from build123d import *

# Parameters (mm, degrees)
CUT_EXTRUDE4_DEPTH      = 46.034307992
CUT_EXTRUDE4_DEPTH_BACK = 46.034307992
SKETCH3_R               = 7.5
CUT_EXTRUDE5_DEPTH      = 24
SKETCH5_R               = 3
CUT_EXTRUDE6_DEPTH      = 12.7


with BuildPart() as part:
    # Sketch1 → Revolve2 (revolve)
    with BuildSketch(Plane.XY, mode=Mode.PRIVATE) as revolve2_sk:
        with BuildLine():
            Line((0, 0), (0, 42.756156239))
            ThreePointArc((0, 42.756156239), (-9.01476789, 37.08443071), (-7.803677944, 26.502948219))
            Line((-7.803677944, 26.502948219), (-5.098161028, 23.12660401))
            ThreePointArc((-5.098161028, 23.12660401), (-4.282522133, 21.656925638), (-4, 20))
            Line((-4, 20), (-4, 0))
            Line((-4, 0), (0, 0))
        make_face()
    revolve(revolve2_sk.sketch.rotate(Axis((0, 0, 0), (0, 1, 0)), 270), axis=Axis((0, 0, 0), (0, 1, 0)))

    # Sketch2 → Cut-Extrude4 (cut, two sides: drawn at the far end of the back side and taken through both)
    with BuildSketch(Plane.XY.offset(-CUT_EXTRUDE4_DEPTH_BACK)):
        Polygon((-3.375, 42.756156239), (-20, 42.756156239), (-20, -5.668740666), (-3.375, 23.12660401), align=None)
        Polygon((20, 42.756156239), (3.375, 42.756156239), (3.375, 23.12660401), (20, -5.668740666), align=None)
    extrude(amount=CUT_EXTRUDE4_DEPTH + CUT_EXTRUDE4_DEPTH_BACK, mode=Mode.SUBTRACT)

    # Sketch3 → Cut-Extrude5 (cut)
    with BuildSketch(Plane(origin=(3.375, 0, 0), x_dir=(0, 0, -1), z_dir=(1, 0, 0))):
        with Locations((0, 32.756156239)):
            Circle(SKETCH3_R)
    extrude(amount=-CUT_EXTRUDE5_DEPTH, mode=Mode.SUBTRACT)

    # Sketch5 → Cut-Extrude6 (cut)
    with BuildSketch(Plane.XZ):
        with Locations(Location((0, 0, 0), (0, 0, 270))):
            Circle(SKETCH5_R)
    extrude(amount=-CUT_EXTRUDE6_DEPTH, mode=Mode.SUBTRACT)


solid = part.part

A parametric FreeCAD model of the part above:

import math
import FreeCAD as App
import Part
import Sketcher
from FreeCAD import Vector
Q = App.Units.Quantity


def add_polygon(sketch, points):
    """Adds a closed chain of lines whose ends are joined by coincident constraints."""
    first, n = sketch.GeometryCount, len(points)
    for a, b in zip(points, points[1:] + points[:1]):
        sketch.addGeometry(Part.LineSegment(App.Vector(*a, 0), App.Vector(*b, 0)), False)
    for i in range(n):
        sketch.addConstraint(Sketcher.Constraint("Coincident", first + i, 2, first + (i + 1) % n, 1))

doc = App.newDocument("Part")
params = doc.addObject("Spreadsheet::Sheet", "Params")
for row, (alias, value) in enumerate([
    ("sketch1_radius", "10 mm"),
    ("sketch1_radius2", "5 mm"),
    ("sketch1_width", "4 mm"),
    ("sketch1_height", "20 mm"),
    ("revolution_angle", "360 deg"),
    ("sketch2_length", "33.25 mm"),
    ("sketch3_diameter", "15 mm"),
    ("pocket2_length", "24 mm"),
    ("sketch4_diameter", "6 mm"),
    ("pocket3_length", "12.7 mm"),
], start=1):
    params.set(f"A{row}", alias)
    params.set(f"B{row}", "=" + value)
    params.setAlias(f"B{row}", alias)

body = doc.addObject("PartDesign::Body", "Body")

# Sketch on XY plane
sketch1 = body.newObject("Sketcher::SketchObject", "Sketch")
sketch1.AttachmentSupport = (doc.getObject("XY_Plane"), [""])
sketch1.MapMode = "FlatFace"
sketch1.addGeometry([
    Part.LineSegment(Vector(0, 0, 0), Vector(0, 42.756156, 0)),  # 0
    Part.ArcOfCircle(Part.Circle(Vector(0, 32.756156, 0), Vector(0, 0, 1), 10), math.radians(90), math.radians(218.705737)),  # 1
    Part.LineSegment(Vector(-7.803678, 26.502948, 0), Vector(-5.098161, 23.126604, 0)),  # 2
    Part.ArcOfCircle(Part.Circle(Vector(-9, 20, 0), Vector(0, 0, 1), 5), math.radians(0), math.radians(38.705737)),  # 3
    Part.LineSegment(Vector(-4, 20, 0), Vector(-4, 0, 0)),  # 4
    Part.LineSegment(Vector(-4, 0, 0), Vector(0, 0, 0)),  # 5
], False)
sketch1.addConstraint([
    Sketcher.Constraint("Coincident", 0, 2, 1, 1),
    Sketcher.Constraint("Tangent", 1, 2, 2, 1),
    Sketcher.Constraint("Tangent", 2, 2, 3, 2),
    Sketcher.Constraint("Tangent", 3, 1, 4, 1),
    Sketcher.Constraint("Coincident", 4, 2, 5, 1),
    Sketcher.Constraint("Coincident", 5, 2, 0, 1),
    Sketcher.Constraint("Vertical", 0),
    Sketcher.Constraint("Vertical", 4),
    Sketcher.Constraint("Horizontal", 5),
    Sketcher.Constraint("Coincident", 5, 2, -1, 1),
    Sketcher.Constraint("PointOnObject", 1, 3, -2),
    Sketcher.Constraint("Radius", 1, 10.0),
    Sketcher.Constraint("Radius", 3, 5.0),
    Sketcher.Constraint("DistanceX", 5, 1, 5, 2, 4.0),
    Sketcher.Constraint("DistanceY", 4, 2, 4, 1, 20.0),
    Sketcher.Constraint("DistanceY", 0, 1, 0, 2, 42.756156),
])
sketch1.setExpression("Constraints[11]", "Params.sketch1_radius")
sketch1.setExpression("Constraints[12]", "Params.sketch1_radius2")
sketch1.setExpression("Constraints[13]", "Params.sketch1_width")
sketch1.setExpression("Constraints[14]", "Params.sketch1_height")
revolution = body.newObject("PartDesign::Revolution", "Revolution")
revolution.Profile = sketch1
revolution.ReferenceAxis = (sketch1, ["V_Axis"])
revolution.setExpression("Angle", "Params.revolution_angle")

# Sketch on XY plane
sketch2 = body.newObject("Sketcher::SketchObject", "Sketch001")
sketch2.AttachmentSupport = (doc.getObject("XY_Plane"), [""])
sketch2.MapMode = "FlatFace"
add_polygon(sketch2, [(-3.375, 42.756156), (-20, 42.756156), (-20, -5.668741), (-3.375, 23.126604)])  # lines 0-3
add_polygon(sketch2, [(20, 42.756156), (3.375, 42.756156), (3.375, 23.126604), (20, -5.668741)])  # lines 4-7
sketch2.addConstraint([
    Sketcher.Constraint("Horizontal", 0),
    Sketcher.Constraint("Vertical", 1),
    Sketcher.Constraint("Vertical", 3),
    Sketcher.Constraint("Horizontal", 4),
    Sketcher.Constraint("Vertical", 5),
    Sketcher.Constraint("Vertical", 7),
    Sketcher.Constraint("Symmetric", 3, 2, 4, 2, -2),
    Sketcher.Constraint("Symmetric", 1, 2, 6, 2, -2),
    Sketcher.Constraint("Horizontal", 2, 2, 5, 2),
    Sketcher.Constraint("Angle", 2, Q("60 deg")),
    Sketcher.Constraint("DistanceX", 0, 2, -1, 1, 20.0),
    Sketcher.Constraint("Distance", 2, 33.25),
    Sketcher.Constraint("DistanceY", 1, 2, 1, 1, 48.424897),
    Sketcher.Constraint("DistanceY", 1, 2, -1, 1, 5.668741),
])
sketch2.setExpression("Constraints[19]", "Params.sketch2_length")
pocket1 = body.newObject("PartDesign::Pocket", "Pocket")
pocket1.Profile = sketch2
pocket1.Type = "ThroughAll"
pocket1.Midplane = True

# Sketch on YZ plane
sketch3 = body.newObject("Sketcher::SketchObject", "Sketch002")
sketch3.AttachmentSupport = (doc.getObject("YZ_Plane"), [""])
sketch3.MapMode = "FlatFace"
sketch3.AttachmentOffset = App.Placement(Vector(0, 0, 3.375), App.Rotation())
sketch3.addGeometry(Part.Circle(Vector(32.756156, 0, 0), Vector(0, 0, 1), 7.5), False)
sketch3.addConstraint([
    Sketcher.Constraint("PointOnObject", 0, 3, -1),
    Sketcher.Constraint("Diameter", 0, 15.0),
    Sketcher.Constraint("DistanceX", -1, 1, 0, 3, 32.756156),
])
sketch3.setExpression("Constraints[1]", "Params.sketch3_diameter")
pocket2 = body.newObject("PartDesign::Pocket", "Pocket001")
pocket2.Profile = sketch3
pocket2.setExpression("Length", "Params.pocket2_length")

# Sketch on XZ plane
sketch4 = body.newObject("Sketcher::SketchObject", "Sketch003")
sketch4.AttachmentSupport = (doc.getObject("XZ_Plane"), [""])
sketch4.MapMode = "FlatFace"
sketch4.addGeometry(Part.Circle(Vector(0, 0, 0), Vector(0, 0, 1), 3), False)
sketch4.addConstraint([
    Sketcher.Constraint("Coincident", 0, 3, -1, 1),
    Sketcher.Constraint("Diameter", 0, 6.0),
])
sketch4.setExpression("Constraints[1]", "Params.sketch4_diameter")
pocket3 = body.newObject("PartDesign::Pocket", "Pocket002")
pocket3.Profile = sketch4
pocket3.setExpression("Length", "Params.pocket3_length")

doc.recompute()
